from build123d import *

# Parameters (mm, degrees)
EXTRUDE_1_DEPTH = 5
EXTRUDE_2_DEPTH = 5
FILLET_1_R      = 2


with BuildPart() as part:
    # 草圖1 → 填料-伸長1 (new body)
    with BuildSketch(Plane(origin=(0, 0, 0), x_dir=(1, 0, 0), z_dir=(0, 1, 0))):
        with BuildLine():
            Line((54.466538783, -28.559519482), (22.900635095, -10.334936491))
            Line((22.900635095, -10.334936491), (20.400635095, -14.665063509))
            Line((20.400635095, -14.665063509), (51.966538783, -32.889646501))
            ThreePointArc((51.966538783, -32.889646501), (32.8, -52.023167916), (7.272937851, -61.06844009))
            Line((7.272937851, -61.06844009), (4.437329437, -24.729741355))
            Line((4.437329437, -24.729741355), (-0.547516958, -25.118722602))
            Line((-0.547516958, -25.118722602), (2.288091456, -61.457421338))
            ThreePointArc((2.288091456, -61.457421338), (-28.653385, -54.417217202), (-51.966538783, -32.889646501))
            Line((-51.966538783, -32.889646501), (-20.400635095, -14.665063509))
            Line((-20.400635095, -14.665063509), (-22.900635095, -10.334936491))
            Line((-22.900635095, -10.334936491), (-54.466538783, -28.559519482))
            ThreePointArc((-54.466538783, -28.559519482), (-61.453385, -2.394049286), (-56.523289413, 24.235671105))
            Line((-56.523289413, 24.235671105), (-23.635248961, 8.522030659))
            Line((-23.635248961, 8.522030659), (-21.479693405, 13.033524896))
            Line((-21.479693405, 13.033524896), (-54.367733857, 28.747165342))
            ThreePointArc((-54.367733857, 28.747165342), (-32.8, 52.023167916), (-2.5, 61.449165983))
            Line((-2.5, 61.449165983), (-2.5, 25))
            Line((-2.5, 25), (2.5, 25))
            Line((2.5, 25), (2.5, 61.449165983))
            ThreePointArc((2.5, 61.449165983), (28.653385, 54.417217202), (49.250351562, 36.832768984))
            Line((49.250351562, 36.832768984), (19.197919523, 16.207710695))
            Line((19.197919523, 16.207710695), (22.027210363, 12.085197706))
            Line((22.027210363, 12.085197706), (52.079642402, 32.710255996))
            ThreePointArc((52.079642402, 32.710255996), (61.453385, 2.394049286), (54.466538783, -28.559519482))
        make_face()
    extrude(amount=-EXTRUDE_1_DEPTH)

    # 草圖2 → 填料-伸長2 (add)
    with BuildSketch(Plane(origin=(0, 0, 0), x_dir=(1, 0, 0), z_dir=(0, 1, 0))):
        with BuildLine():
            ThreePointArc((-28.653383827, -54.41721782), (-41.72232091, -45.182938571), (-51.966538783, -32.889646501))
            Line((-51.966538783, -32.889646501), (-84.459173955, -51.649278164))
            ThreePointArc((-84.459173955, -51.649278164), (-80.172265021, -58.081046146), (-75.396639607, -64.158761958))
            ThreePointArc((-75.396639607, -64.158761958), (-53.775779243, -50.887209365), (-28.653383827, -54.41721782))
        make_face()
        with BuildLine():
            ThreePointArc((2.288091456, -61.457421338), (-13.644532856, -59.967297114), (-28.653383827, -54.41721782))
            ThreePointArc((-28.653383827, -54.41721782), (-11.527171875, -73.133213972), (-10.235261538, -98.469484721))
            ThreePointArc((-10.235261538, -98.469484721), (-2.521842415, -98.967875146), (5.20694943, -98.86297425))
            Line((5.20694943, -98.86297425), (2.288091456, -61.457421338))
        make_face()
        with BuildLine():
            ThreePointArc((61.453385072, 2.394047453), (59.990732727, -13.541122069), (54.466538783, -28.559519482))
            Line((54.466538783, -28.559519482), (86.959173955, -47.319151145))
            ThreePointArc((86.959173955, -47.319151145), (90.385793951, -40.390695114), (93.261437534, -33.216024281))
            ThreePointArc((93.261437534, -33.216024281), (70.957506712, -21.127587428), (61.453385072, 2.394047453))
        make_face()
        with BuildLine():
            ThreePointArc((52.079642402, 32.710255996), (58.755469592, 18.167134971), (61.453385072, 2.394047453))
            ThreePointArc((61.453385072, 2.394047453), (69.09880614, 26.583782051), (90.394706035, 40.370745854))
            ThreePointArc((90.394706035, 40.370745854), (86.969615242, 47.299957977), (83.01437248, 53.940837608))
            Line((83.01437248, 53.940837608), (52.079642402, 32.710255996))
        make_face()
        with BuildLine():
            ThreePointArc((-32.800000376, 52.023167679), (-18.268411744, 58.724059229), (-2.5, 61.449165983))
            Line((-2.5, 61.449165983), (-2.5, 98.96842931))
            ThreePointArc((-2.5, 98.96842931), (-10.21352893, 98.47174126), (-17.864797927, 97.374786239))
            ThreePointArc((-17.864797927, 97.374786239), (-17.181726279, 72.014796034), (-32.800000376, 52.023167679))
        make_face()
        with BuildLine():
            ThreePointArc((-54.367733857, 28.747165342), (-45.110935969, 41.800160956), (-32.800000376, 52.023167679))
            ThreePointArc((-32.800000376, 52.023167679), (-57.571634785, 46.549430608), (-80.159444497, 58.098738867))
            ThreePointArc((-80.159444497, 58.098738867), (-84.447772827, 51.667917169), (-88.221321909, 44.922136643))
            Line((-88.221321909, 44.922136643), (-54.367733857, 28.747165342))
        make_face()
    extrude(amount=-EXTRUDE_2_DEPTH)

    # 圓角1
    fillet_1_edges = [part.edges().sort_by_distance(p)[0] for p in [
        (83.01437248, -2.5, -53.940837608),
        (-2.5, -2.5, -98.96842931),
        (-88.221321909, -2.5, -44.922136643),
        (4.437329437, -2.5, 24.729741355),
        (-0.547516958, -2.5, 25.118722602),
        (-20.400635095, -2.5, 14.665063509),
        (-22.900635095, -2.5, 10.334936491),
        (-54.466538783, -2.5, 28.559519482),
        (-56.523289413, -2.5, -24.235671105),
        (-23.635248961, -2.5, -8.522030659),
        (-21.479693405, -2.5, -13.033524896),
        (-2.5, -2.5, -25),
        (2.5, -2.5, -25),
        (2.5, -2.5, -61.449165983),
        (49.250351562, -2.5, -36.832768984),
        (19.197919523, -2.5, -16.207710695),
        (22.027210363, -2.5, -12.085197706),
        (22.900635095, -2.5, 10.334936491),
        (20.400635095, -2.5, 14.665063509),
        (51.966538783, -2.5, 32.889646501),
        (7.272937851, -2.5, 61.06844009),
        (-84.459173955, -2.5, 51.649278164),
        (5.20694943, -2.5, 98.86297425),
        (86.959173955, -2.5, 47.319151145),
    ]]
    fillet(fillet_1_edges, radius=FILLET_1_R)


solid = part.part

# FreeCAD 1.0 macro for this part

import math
import FreeCAD as App
import Part
import Sketcher
Q = App.Units.Quantity


def edges_at(feature, points):
    """Names of the edges that pass closest to the given points."""
    edges = feature.Shape.Edges
    near = lambda p: min(range(len(edges)), key=lambda i: edges[i].distToShape(Part.Vertex(*p))[0])
    return sorted({f"Edge{near(p) + 1}" for p in points})

doc = App.newDocument("Part")
body = doc.addObject("PartDesign::Body", "Body")

# Sketch on XZ plane
sketch1 = body.newObject("Sketcher::SketchObject", "Sketch")
sketch1.AttachmentSupport = (doc.getObject("XZ_Plane"), [""])
sketch1.MapMode = "FlatFace"
sketch1.addGeometry([
    Part.LineSegment(App.Vector(22.900635, 10.334936, 0), App.Vector(54.466539, 28.559519, 0)),  # 0
    Part.ArcOfCircle(Part.Circle(App.Vector(0, 0, 0), App.Vector(0, 0, 1), 61.5), math.radians(-32.132167), math.radians(27.670261)),  # 1
    Part.LineSegment(App.Vector(52.079642, -32.710256, 0), App.Vector(22.02721, -12.085198, 0)),  # 2
    Part.LineSegment(App.Vector(22.02721, -12.085198, 0), App.Vector(19.19792, -16.207711, 0)),  # 3
    Part.LineSegment(App.Vector(19.19792, -16.207711, 0), App.Vector(49.250352, -36.832769, 0)),  # 4
    Part.ArcOfCircle(Part.Circle(App.Vector(0, 0, 0), App.Vector(0, 0, 1), 61.5), math.radians(-87.670261), math.radians(-36.791644)),  # 5
    Part.LineSegment(App.Vector(2.5, -61.449166, 0), App.Vector(2.5, -25, 0)),  # 6
    Part.LineSegment(App.Vector(2.5, -25, 0), App.Vector(-2.5, -25, 0)),  # 7
    Part.LineSegment(App.Vector(-2.5, -25, 0), App.Vector(-2.5, -61.449166, 0)),  # 8
    Part.ArcOfCircle(Part.Circle(App.Vector(0, 0, 0), App.Vector(0, 0, 1), 61.5), math.radians(-152.132167), math.radians(-92.329739)),  # 9
    Part.LineSegment(App.Vector(-54.367734, -28.747165, 0), App.Vector(-21.479693, -13.033525, 0)),  # 10
    Part.LineSegment(App.Vector(-21.479693, -13.033525, 0), App.Vector(-23.635249, -8.522031, 0)),  # 11
    Part.LineSegment(App.Vector(-23.635249, -8.522031, 0), App.Vector(-56.523289, -24.235671, 0)),  # 12
    Part.ArcOfCircle(Part.Circle(App.Vector(0, 0, 0), App.Vector(0, 0, 1), 61.5), math.radians(152.329739), math.radians(203.208356)),  # 13
    Part.LineSegment(App.Vector(-54.466539, 28.559519, 0), App.Vector(-22.900635, 10.334936, 0)),  # 14
    Part.LineSegment(App.Vector(-22.900635, 10.334936, 0), App.Vector(-20.400635, 14.665064, 0)),  # 15
    Part.LineSegment(App.Vector(-20.400635, 14.665064, 0), App.Vector(-51.966539, 32.889647, 0)),  # 16
    Part.ArcOfCircle(Part.Circle(App.Vector(0, 0, 0), App.Vector(0, 0, 1), 61.5), math.radians(87.867833), math.radians(147.670261)),  # 17
    Part.LineSegment(App.Vector(2.288091, 61.457421, 0), App.Vector(-0.547517, 25.118723, 0)),  # 18
    Part.LineSegment(App.Vector(-0.547517, 25.118723, 0), App.Vector(4.437329, 24.729741, 0)),  # 19
    Part.LineSegment(App.Vector(4.437329, 24.729741, 0), App.Vector(7.272938, 61.06844, 0)),  # 20
    Part.ArcOfCircle(Part.Circle(App.Vector(0, 0, 0), App.Vector(0, 0, 1), 61.5), math.radians(32.329739), math.radians(83.208356)),  # 21
    Part.LineSegment(App.Vector(51.966539, 32.889647, 0), App.Vector(20.400635, 14.665064, 0)),  # 22
    Part.LineSegment(App.Vector(20.400635, 14.665064, 0), App.Vector(22.900635, 10.334936, 0)),  # 23
], False)
sketch1.addConstraint([
    Sketcher.Constraint("Coincident", 0, 2, 1, 2),
    Sketcher.Constraint("Coincident", 1, 1, 2, 1),
    Sketcher.Constraint("Coincident", 2, 2, 3, 1),
    Sketcher.Constraint("Coincident", 3, 2, 4, 1),
    Sketcher.Constraint("Coincident", 4, 2, 5, 2),
    Sketcher.Constraint("Coincident", 5, 1, 6, 1),
    Sketcher.Constraint("Coincident", 6, 2, 7, 1),
    Sketcher.Constraint("Coincident", 7, 2, 8, 1),
    Sketcher.Constraint("Coincident", 8, 2, 9, 2),
    Sketcher.Constraint("Coincident", 9, 1, 10, 1),
    Sketcher.Constraint("Coincident", 10, 2, 11, 1),
    Sketcher.Constraint("Coincident", 11, 2, 12, 1),
    Sketcher.Constraint("Coincident", 12, 2, 13, 2),
    Sketcher.Constraint("Coincident", 13, 1, 14, 1),
    Sketcher.Constraint("Coincident", 14, 2, 15, 1),
    Sketcher.Constraint("Coincident", 15, 2, 16, 1),
    Sketcher.Constraint("Coincident", 16, 2, 17, 2),
    Sketcher.Constraint("Coincident", 17, 1, 18, 1),
    Sketcher.Constraint("Coincident", 18, 2, 19, 1),
    Sketcher.Constraint("Coincident", 19, 2, 20, 1),
    Sketcher.Constraint("Coincident", 20, 2, 21, 2),
    Sketcher.Constraint("Coincident", 21, 1, 22, 1),
    Sketcher.Constraint("Coincident", 22, 2, 23, 1),
    Sketcher.Constraint("Coincident", 23, 2, 0, 1),
    Sketcher.Constraint("Vertical", 6),
    Sketcher.Constraint("Horizontal", 7),
    Sketcher.Constraint("Vertical", 8),
    Sketcher.Constraint("Coincident", 1, 3, -1, 1),
    Sketcher.Constraint("Coincident", 5, 3, -1, 1),
    Sketcher.Constraint("Coincident", 9, 3, -1, 1),
    Sketcher.Constraint("Coincident", 13, 3, -1, 1),
    Sketcher.Constraint("Coincident", 17, 3, -1, 1),
    Sketcher.Constraint("Coincident", 21, 3, -1, 1),
    Sketcher.Constraint("Equal", 1, 5),
    Sketcher.Constraint("Equal", 5, 9),
    Sketcher.Constraint("Equal", 9, 13),
    Sketcher.Constraint("Equal", 13, 17),
    Sketcher.Constraint("Equal", 17, 21),
    Sketcher.Constraint("Symmetric", 15, 2, 22, 2, -2),
    Sketcher.Constraint("Symmetric", 14, 2, 23, 2, -2),
    Sketcher.Constraint("Perpendicular", 2, 3),
    Sketcher.Constraint("Perpendicular", 3, 4),
    Sketcher.Constraint("Perpendicular", 10, 11),
    Sketcher.Constraint("Perpendicular", 11, 12),
    Sketcher.Constraint("Perpendicular", 14, 15),
    Sketcher.Constraint("Perpendicular", 15, 16),
    Sketcher.Constraint("Perpendicular", 18, 19),
    Sketcher.Constraint("Perpendicular", 19, 20),
    Sketcher.Constraint("Parallel", 0, 22),
    Sketcher.Constraint("Perpendicular", 22, 23),
    Sketcher.Constraint("Horizontal", 5, 1, 8, 2),
    Sketcher.Constraint("Equal", 0, 2),
    Sketcher.Constraint("Equal", 2, 4),
    Sketcher.Constraint("Equal", 4, 10),
    Sketcher.Constraint("Equal", 3, 11),
    Sketcher.Constraint("Equal", 10, 12),
    Sketcher.Constraint("Equal", 11, 15),
    Sketcher.Constraint("Equal", 14, 16),
    Sketcher.Constraint("Equal", 16, 18),
    Sketcher.Constraint("Equal", 15, 19),
    Sketcher.Constraint("Equal", 18, 20),
    Sketcher.Constraint("Radius", 1, 61.5),
    Sketcher.Constraint("DistanceX", 7, 2, 7, 1, 5.0),
    Sketcher.Constraint("Angle", 0, Q("30 deg")),
    Sketcher.Constraint("Distance", 3, 5.0),
    Sketcher.Constraint("DistanceY", 6, 2, -1, 1, 25.0),
    Sketcher.Constraint("DistanceY", 8, 2, 9, 1, 32.702001),
    Sketcher.Constraint("DistanceY", 19, 2, 20, 2, 36.338699),
    Sketcher.Constraint("DistanceX", 20, 2, 0, 2, 47.193601),
    Sketcher.Constraint("DistanceX", -1, 1, 2, 2, 22.02721),
])
pad1 = body.newObject("PartDesign::Pad", "Pad")
pad1.Profile = sketch1
pad1.Length = 5

# Sketch on XZ plane
sketch2 = body.newObject("Sketcher::SketchObject", "Sketch001")
sketch2.AttachmentSupport = (doc.getObject("XZ_Plane"), [""])
sketch2.MapMode = "FlatFace"
sketch2.addGeometry([
    Part.ArcOfCircle(Part.Circle(App.Vector(0, 0, 0), App.Vector(0, 0, 1), 61.5), math.radians(117.769046), math.radians(147.670261)),  # 0
    Part.LineSegment(App.Vector(-51.966539, 32.889647, 0), App.Vector(-84.459174, 51.649278, 0)),  # 1
    Part.ArcOfCircle(Part.Circle(App.Vector(0, 0, 0), App.Vector(0, 0, 1), 99), math.radians(139.603882), math.radians(148.552983)),  # 2
    Part.ArcOfCircle(Part.Circle(App.Vector(-46.124961, 87.598447, 0), App.Vector(0, 0, 1), 37.5), math.radians(-141.313535), math.radians(-62.230951)),  # 3
    Part.ArcOfCircle(Part.Circle(App.Vector(0, 0, 0), App.Vector(0, 0, 1), 61.5), math.radians(87.867833), math.radians(117.769046)),  # 4
    Part.ArcOfCircle(Part.Circle(App.Vector(-46.124961, 87.598447, 0), App.Vector(0, 0, 1), 37.5), math.radians(-62.230951), math.radians(16.85163)),  # 5
    Part.ArcOfCircle(Part.Circle(App.Vector(0, 0, 0), App.Vector(0, 0, 1), 99), math.radians(86.985112), math.radians(95.934213)),  # 6
    Part.LineSegment(App.Vector(5.206949, 98.862974, 0), App.Vector(2.288091, 61.457421, 0)),  # 7
    Part.ArcOfCircle(Part.Circle(App.Vector(0, 0, 0), App.Vector(0, 0, 1), 61.5), math.radians(-2.230951), math.radians(27.670261)),  # 8
    Part.LineSegment(App.Vector(54.466539, 28.559519, 0), App.Vector(86.959174, 47.319151, 0)),  # 9
    Part.ArcOfCircle(Part.Circle(App.Vector(0, 0, 0), App.Vector(0, 0, 1), 99), math.radians(19.603882), math.radians(28.552983)),  # 10
    Part.ArcOfCircle(Part.Circle(App.Vector(98.924961, -3.853835, 0), App.Vector(0, 0, 1), 37.5), math.radians(98.686465), math.radians(177.769045)),  # 11
    Part.ArcOfCircle(Part.Circle(App.Vector(0, 0, 0), App.Vector(0, 0, 1), 61.5), math.radians(-32.132167), math.radians(-2.230951)),  # 12
    Part.ArcOfCircle(Part.Circle(App.Vector(98.924961, -3.853835, 0), App.Vector(0, 0, 1), 37.5), math.radians(177.769045), math.radians(256.85163)),  # 13
    Part.ArcOfCircle(Part.Circle(App.Vector(0, 0, 0), App.Vector(0, 0, 1), 99), math.radians(-33.014888), math.radians(-24.065787)),  # 14
    Part.LineSegment(App.Vector(83.014372, -53.940838, 0), App.Vector(52.079642, -32.710256, 0)),  # 15
    Part.ArcOfCircle(Part.Circle(App.Vector(0, 0, 0), App.Vector(0, 0, 1), 61.5), math.radians(-122.230953), math.radians(-92.329739)),  # 16
    Part.LineSegment(App.Vector(-2.5, -61.449166, 0), App.Vector(-2.5, -98.968429, 0)),  # 17
    Part.ArcOfCircle(Part.Circle(App.Vector(0, 0, 0), App.Vector(0, 0, 1), 99), math.radians(-100.396118), math.radians(-91.447017)),  # 18
    Part.ArcOfCircle(Part.Circle(App.Vector(-52.8, -83.744612, 0), App.Vector(0, 0, 1), 37.5), math.radians(-21.313535), math.radians(57.769048)),  # 19
    Part.ArcOfCircle(Part.Circle(App.Vector(0, 0, 0), App.Vector(0, 0, 1), 61.5), math.radians(-152.132167), math.radians(-122.230953)),  # 20
    Part.ArcOfCircle(Part.Circle(App.Vector(-52.8, -83.744612, 0), App.Vector(0, 0, 1), 37.5), math.radians(57.769048), math.radians(136.85163)),  # 21
    Part.ArcOfCircle(Part.Circle(App.Vector(0, 0, 0), App.Vector(0, 0, 1), 99), math.radians(-153.014888), math.radians(-144.065787)),  # 22
    Part.LineSegment(App.Vector(-88.221322, -44.922137, 0), App.Vector(-54.367734, -28.747165, 0)),  # 23
], False)
sketch2.addConstraint([
    Sketcher.Constraint("Coincident", 0, 2, 1, 1),
    Sketcher.Constraint("Coincident", 1, 2, 2, 2),
    Sketcher.Constraint("Coincident", 2, 1, 3, 1),
    Sketcher.Constraint("Tangent", 3, 2, 0, 1),
    Sketcher.Constraint("Tangent", 4, 2, 5, 1),
    Sketcher.Constraint("Coincident", 5, 2, 6, 2),
    Sketcher.Constraint("Coincident", 6, 1, 7, 1),
    Sketcher.Constraint("Coincident", 7, 2, 4, 1),
    Sketcher.Constraint("Coincident", 8, 2, 9, 1),
    Sketcher.Constraint("Coincident", 9, 2, 10, 2),
    Sketcher.Constraint("Coincident", 10, 1, 11, 1),
    Sketcher.Constraint("Tangent", 11, 2, 8, 1),
    Sketcher.Constraint("Tangent", 12, 2, 13, 1),
    Sketcher.Constraint("Coincident", 13, 2, 14, 2),
    Sketcher.Constraint("Coincident", 14, 1, 15, 1),
    Sketcher.Constraint("Coincident", 15, 2, 12, 1),
    Sketcher.Constraint("Coincident", 16, 2, 17, 1),
    Sketcher.Constraint("Coincident", 17, 2, 18, 2),
    Sketcher.Constraint("Coincident", 18, 1, 19, 1),
    Sketcher.Constraint("Tangent", 19, 2, 16, 1),
    Sketcher.Constraint("Tangent", 20, 2, 21, 1),
    Sketcher.Constraint("Coincident", 21, 2, 22, 2),
    Sketcher.Constraint("Coincident", 22, 1, 23, 1),
    Sketcher.Constraint("Coincident", 23, 2, 20, 1),
    Sketcher.Constraint("Vertical", 17),
    Sketcher.Constraint("Coincident", 0, 3, -1, 1),
    Sketcher.Constraint("Coincident", 2, 3, -1, 1),
    Sketcher.Constraint("Coincident", 4, 3, -1, 1),
    Sketcher.Constraint("Coincident", 6, 3, -1, 1),
    Sketcher.Constraint("Coincident", 8, 3, -1, 1),
    Sketcher.Constraint("Coincident", 10, 3, -1, 1),
    Sketcher.Constraint("Coincident", 12, 3, -1, 1),
    Sketcher.Constraint("Coincident", 14, 3, -1, 1),
    Sketcher.Constraint("Coincident", 16, 3, -1, 1),
    Sketcher.Constraint("Coincident", 18, 3, -1, 1),
    Sketcher.Constraint("Coincident", 20, 3, -1, 1),
    Sketcher.Constraint("Coincident", 22, 3, -1, 1),
    Sketcher.Constraint("Coincident", 5, 3, 3, 3),
    Sketcher.Constraint("Coincident", 13, 3, 11, 3),
    Sketcher.Constraint("Coincident", 21, 3, 19, 3),
    Sketcher.Constraint("Equal", 0, 4),
    Sketcher.Constraint("Equal", 2, 6),
    Sketcher.Constraint("Equal", 4, 8),
    Sketcher.Constraint("Equal", 6, 10),
    Sketcher.Constraint("Equal", 5, 11),
    Sketcher.Constraint("Equal", 8, 12),
    Sketcher.Constraint("Equal", 10, 14),
    Sketcher.Constraint("Equal", 12, 16),
    Sketcher.Constraint("Equal", 14, 18),
    Sketcher.Constraint("Equal", 13, 19),
    Sketcher.Constraint("Equal", 16, 20),
    Sketcher.Constraint("Equal", 18, 22),
    Sketcher.Constraint("Equal", 1, 7),
    Sketcher.Constraint("Equal", 7, 9),
    Sketcher.Constraint("Equal", 9, 15),
    Sketcher.Constraint("Equal", 15, 23),
    Sketcher.Constraint("Radius", 2, 99.0),
    Sketcher.Constraint("Radius", 0, 61.5),
    Sketcher.Constraint("Radius", 3, 37.5),
    Sketcher.Constraint("Angle", 1, Q("150 deg")),
    Sketcher.Constraint("Angle", 9, Q("30 deg")),
    Sketcher.Constraint("DistanceX", 19, 3, 19, 2, 20.0),
    Sketcher.Constraint("DistanceX", 16, 2, -1, 1, 2.5),
    Sketcher.Constraint("DistanceY", 0, 2, 3, 3, 54.708801),
    Sketcher.Constraint("DistanceX", 2, 1, 0, 2, 23.430101),
    Sketcher.Constraint("DistanceX", 8, 2, 10, 1, 38.794899),
    Sketcher.Constraint("DistanceX", -1, 1, 6, 1, 5.206949),
    Sketcher.Constraint("DistanceX", 22, 1, -1, 1, 88.221322),
    Sketcher.Constraint("DistanceY", 14, 1, 13, 2, 13.570092),
])
pad2 = body.newObject("PartDesign::Pad", "Pad001")
pad2.Profile = sketch2
pad2.Length = 5
doc.recompute()

fillet = body.newObject("PartDesign::Fillet", "Fillet")
fillet.Base = (pad2, edges_at(pad2, [
    (83.014, -2.5, -53.941),
    (-2.5, -2.5, -98.968),
    (-88.221, -2.5, -44.922),
    (4.437, -2.5, 24.73),
    (-0.548, -2.5, 25.119),
    (-20.401, -2.5, 14.665),
    (-22.901, -2.5, 10.335),
    (-54.467, -2.5, 28.56),
    (-56.523, -2.5, -24.236),
    (-23.635, -2.5, -8.522),
    (-21.48, -2.5, -13.034),
    (-2.5, -2.5, -25),
    (2.5, -2.5, -25),
    (2.5, -2.5, -61.449),
    (49.25, -2.5, -36.833),
    (19.198, -2.5, -16.208),
    (22.027, -2.5, -12.085),
    (22.901, -2.5, 10.335),
    (20.401, -2.5, 14.665),
    (51.967, -2.5, 32.89),
    (7.273, -2.5, 61.068),
    (-84.459, -2.5, 51.649),
    (5.207, -2.5, 98.863),
    (86.959, -2.5, 47.319),
]))
fillet.Radius = 2

doc.recompute()
